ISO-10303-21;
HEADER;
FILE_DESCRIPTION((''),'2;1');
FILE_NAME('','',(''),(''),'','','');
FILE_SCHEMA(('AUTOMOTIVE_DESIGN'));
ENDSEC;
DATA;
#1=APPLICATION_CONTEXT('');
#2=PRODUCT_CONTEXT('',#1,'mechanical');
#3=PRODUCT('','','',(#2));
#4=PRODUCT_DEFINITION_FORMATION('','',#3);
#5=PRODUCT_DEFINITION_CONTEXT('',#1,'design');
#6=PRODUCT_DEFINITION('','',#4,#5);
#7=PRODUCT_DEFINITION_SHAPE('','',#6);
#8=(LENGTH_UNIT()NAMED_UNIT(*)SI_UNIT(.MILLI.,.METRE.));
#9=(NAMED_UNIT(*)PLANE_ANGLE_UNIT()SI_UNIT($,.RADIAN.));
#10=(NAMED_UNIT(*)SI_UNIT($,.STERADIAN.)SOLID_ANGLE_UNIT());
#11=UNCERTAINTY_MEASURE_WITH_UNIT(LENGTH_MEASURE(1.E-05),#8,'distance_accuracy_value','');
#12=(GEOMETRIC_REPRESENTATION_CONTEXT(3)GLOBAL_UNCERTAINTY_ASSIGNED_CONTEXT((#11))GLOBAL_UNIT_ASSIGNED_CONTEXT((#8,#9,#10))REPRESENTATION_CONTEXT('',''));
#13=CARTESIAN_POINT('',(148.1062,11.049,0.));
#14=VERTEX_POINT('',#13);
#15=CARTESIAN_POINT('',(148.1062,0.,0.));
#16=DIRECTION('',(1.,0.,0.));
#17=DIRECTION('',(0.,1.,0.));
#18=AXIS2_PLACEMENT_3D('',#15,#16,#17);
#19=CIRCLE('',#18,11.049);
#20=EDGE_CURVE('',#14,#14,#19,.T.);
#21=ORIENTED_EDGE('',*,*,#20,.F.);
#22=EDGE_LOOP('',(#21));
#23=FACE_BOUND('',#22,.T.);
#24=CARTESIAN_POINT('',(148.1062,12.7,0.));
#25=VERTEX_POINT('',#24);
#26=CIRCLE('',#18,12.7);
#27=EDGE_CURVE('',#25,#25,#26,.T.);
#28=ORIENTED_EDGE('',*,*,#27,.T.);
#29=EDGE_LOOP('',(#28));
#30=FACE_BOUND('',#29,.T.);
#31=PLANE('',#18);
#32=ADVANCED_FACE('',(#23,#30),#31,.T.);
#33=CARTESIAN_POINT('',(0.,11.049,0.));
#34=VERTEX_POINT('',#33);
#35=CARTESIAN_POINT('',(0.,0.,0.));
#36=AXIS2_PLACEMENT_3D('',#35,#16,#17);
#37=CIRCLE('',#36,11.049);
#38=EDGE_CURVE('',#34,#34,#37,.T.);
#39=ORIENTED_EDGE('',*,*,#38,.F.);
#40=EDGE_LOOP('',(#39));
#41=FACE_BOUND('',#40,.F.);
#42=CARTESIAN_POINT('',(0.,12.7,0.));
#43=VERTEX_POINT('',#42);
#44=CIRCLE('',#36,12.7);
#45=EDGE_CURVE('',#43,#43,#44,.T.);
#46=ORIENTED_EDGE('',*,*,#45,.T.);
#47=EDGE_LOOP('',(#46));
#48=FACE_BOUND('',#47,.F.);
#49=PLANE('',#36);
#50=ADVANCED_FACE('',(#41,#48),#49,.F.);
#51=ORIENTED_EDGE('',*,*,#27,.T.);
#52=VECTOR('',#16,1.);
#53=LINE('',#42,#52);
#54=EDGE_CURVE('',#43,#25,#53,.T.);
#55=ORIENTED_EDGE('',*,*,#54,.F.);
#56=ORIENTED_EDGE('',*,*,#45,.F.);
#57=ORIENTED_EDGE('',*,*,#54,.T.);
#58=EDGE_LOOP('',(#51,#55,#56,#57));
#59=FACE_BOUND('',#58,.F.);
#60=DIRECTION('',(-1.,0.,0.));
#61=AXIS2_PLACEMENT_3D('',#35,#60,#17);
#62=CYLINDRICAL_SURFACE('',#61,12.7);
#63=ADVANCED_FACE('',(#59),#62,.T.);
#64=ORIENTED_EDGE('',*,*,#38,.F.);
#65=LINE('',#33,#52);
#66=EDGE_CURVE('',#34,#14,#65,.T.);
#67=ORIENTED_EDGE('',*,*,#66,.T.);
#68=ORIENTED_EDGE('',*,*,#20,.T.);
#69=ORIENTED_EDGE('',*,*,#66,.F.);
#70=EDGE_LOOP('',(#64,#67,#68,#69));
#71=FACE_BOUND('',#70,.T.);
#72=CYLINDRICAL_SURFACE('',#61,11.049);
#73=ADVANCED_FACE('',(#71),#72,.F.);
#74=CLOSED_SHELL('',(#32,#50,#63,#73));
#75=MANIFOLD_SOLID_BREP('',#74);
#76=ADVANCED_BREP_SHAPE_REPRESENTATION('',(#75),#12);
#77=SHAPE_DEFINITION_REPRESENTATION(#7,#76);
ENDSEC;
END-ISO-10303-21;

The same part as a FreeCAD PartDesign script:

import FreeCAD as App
import Part
import Sketcher
from FreeCAD import Vector
Q = App.Units.Quantity

doc = App.newDocument("Part")
body = doc.addObject("PartDesign::Body", "Body")

sketch1 = body.newObject("Sketcher::SketchObject", "Sketch")
sketch1.AttachmentSupport = (doc.getObject("YZ_Plane"), [""])
sketch1.MapMode = "FlatFace"
sketch1.addGeometry([
    Part.Circle(Vector(0, 0, 0), Vector(0, 0, 1), 12.7),
    Part.Circle(Vector(0, 0, 0), Vector(0, 0, 1), 11.049),
], False)
sketch1.addConstraint([
    Sketcher.Constraint("Coincident", 0, 3, -1, 1),
    Sketcher.Constraint("Coincident", 1, 3, -1, 1),
    Sketcher.Constraint("Diameter", 0, Q("1 in")),
    Sketcher.Constraint("Diameter", 1, Q("0.87 in")),
])
pad1 = body.newObject("PartDesign::Pad", "Pad")
pad1.Profile = sketch1
pad1.Length = 148.1062

doc.recompute()
